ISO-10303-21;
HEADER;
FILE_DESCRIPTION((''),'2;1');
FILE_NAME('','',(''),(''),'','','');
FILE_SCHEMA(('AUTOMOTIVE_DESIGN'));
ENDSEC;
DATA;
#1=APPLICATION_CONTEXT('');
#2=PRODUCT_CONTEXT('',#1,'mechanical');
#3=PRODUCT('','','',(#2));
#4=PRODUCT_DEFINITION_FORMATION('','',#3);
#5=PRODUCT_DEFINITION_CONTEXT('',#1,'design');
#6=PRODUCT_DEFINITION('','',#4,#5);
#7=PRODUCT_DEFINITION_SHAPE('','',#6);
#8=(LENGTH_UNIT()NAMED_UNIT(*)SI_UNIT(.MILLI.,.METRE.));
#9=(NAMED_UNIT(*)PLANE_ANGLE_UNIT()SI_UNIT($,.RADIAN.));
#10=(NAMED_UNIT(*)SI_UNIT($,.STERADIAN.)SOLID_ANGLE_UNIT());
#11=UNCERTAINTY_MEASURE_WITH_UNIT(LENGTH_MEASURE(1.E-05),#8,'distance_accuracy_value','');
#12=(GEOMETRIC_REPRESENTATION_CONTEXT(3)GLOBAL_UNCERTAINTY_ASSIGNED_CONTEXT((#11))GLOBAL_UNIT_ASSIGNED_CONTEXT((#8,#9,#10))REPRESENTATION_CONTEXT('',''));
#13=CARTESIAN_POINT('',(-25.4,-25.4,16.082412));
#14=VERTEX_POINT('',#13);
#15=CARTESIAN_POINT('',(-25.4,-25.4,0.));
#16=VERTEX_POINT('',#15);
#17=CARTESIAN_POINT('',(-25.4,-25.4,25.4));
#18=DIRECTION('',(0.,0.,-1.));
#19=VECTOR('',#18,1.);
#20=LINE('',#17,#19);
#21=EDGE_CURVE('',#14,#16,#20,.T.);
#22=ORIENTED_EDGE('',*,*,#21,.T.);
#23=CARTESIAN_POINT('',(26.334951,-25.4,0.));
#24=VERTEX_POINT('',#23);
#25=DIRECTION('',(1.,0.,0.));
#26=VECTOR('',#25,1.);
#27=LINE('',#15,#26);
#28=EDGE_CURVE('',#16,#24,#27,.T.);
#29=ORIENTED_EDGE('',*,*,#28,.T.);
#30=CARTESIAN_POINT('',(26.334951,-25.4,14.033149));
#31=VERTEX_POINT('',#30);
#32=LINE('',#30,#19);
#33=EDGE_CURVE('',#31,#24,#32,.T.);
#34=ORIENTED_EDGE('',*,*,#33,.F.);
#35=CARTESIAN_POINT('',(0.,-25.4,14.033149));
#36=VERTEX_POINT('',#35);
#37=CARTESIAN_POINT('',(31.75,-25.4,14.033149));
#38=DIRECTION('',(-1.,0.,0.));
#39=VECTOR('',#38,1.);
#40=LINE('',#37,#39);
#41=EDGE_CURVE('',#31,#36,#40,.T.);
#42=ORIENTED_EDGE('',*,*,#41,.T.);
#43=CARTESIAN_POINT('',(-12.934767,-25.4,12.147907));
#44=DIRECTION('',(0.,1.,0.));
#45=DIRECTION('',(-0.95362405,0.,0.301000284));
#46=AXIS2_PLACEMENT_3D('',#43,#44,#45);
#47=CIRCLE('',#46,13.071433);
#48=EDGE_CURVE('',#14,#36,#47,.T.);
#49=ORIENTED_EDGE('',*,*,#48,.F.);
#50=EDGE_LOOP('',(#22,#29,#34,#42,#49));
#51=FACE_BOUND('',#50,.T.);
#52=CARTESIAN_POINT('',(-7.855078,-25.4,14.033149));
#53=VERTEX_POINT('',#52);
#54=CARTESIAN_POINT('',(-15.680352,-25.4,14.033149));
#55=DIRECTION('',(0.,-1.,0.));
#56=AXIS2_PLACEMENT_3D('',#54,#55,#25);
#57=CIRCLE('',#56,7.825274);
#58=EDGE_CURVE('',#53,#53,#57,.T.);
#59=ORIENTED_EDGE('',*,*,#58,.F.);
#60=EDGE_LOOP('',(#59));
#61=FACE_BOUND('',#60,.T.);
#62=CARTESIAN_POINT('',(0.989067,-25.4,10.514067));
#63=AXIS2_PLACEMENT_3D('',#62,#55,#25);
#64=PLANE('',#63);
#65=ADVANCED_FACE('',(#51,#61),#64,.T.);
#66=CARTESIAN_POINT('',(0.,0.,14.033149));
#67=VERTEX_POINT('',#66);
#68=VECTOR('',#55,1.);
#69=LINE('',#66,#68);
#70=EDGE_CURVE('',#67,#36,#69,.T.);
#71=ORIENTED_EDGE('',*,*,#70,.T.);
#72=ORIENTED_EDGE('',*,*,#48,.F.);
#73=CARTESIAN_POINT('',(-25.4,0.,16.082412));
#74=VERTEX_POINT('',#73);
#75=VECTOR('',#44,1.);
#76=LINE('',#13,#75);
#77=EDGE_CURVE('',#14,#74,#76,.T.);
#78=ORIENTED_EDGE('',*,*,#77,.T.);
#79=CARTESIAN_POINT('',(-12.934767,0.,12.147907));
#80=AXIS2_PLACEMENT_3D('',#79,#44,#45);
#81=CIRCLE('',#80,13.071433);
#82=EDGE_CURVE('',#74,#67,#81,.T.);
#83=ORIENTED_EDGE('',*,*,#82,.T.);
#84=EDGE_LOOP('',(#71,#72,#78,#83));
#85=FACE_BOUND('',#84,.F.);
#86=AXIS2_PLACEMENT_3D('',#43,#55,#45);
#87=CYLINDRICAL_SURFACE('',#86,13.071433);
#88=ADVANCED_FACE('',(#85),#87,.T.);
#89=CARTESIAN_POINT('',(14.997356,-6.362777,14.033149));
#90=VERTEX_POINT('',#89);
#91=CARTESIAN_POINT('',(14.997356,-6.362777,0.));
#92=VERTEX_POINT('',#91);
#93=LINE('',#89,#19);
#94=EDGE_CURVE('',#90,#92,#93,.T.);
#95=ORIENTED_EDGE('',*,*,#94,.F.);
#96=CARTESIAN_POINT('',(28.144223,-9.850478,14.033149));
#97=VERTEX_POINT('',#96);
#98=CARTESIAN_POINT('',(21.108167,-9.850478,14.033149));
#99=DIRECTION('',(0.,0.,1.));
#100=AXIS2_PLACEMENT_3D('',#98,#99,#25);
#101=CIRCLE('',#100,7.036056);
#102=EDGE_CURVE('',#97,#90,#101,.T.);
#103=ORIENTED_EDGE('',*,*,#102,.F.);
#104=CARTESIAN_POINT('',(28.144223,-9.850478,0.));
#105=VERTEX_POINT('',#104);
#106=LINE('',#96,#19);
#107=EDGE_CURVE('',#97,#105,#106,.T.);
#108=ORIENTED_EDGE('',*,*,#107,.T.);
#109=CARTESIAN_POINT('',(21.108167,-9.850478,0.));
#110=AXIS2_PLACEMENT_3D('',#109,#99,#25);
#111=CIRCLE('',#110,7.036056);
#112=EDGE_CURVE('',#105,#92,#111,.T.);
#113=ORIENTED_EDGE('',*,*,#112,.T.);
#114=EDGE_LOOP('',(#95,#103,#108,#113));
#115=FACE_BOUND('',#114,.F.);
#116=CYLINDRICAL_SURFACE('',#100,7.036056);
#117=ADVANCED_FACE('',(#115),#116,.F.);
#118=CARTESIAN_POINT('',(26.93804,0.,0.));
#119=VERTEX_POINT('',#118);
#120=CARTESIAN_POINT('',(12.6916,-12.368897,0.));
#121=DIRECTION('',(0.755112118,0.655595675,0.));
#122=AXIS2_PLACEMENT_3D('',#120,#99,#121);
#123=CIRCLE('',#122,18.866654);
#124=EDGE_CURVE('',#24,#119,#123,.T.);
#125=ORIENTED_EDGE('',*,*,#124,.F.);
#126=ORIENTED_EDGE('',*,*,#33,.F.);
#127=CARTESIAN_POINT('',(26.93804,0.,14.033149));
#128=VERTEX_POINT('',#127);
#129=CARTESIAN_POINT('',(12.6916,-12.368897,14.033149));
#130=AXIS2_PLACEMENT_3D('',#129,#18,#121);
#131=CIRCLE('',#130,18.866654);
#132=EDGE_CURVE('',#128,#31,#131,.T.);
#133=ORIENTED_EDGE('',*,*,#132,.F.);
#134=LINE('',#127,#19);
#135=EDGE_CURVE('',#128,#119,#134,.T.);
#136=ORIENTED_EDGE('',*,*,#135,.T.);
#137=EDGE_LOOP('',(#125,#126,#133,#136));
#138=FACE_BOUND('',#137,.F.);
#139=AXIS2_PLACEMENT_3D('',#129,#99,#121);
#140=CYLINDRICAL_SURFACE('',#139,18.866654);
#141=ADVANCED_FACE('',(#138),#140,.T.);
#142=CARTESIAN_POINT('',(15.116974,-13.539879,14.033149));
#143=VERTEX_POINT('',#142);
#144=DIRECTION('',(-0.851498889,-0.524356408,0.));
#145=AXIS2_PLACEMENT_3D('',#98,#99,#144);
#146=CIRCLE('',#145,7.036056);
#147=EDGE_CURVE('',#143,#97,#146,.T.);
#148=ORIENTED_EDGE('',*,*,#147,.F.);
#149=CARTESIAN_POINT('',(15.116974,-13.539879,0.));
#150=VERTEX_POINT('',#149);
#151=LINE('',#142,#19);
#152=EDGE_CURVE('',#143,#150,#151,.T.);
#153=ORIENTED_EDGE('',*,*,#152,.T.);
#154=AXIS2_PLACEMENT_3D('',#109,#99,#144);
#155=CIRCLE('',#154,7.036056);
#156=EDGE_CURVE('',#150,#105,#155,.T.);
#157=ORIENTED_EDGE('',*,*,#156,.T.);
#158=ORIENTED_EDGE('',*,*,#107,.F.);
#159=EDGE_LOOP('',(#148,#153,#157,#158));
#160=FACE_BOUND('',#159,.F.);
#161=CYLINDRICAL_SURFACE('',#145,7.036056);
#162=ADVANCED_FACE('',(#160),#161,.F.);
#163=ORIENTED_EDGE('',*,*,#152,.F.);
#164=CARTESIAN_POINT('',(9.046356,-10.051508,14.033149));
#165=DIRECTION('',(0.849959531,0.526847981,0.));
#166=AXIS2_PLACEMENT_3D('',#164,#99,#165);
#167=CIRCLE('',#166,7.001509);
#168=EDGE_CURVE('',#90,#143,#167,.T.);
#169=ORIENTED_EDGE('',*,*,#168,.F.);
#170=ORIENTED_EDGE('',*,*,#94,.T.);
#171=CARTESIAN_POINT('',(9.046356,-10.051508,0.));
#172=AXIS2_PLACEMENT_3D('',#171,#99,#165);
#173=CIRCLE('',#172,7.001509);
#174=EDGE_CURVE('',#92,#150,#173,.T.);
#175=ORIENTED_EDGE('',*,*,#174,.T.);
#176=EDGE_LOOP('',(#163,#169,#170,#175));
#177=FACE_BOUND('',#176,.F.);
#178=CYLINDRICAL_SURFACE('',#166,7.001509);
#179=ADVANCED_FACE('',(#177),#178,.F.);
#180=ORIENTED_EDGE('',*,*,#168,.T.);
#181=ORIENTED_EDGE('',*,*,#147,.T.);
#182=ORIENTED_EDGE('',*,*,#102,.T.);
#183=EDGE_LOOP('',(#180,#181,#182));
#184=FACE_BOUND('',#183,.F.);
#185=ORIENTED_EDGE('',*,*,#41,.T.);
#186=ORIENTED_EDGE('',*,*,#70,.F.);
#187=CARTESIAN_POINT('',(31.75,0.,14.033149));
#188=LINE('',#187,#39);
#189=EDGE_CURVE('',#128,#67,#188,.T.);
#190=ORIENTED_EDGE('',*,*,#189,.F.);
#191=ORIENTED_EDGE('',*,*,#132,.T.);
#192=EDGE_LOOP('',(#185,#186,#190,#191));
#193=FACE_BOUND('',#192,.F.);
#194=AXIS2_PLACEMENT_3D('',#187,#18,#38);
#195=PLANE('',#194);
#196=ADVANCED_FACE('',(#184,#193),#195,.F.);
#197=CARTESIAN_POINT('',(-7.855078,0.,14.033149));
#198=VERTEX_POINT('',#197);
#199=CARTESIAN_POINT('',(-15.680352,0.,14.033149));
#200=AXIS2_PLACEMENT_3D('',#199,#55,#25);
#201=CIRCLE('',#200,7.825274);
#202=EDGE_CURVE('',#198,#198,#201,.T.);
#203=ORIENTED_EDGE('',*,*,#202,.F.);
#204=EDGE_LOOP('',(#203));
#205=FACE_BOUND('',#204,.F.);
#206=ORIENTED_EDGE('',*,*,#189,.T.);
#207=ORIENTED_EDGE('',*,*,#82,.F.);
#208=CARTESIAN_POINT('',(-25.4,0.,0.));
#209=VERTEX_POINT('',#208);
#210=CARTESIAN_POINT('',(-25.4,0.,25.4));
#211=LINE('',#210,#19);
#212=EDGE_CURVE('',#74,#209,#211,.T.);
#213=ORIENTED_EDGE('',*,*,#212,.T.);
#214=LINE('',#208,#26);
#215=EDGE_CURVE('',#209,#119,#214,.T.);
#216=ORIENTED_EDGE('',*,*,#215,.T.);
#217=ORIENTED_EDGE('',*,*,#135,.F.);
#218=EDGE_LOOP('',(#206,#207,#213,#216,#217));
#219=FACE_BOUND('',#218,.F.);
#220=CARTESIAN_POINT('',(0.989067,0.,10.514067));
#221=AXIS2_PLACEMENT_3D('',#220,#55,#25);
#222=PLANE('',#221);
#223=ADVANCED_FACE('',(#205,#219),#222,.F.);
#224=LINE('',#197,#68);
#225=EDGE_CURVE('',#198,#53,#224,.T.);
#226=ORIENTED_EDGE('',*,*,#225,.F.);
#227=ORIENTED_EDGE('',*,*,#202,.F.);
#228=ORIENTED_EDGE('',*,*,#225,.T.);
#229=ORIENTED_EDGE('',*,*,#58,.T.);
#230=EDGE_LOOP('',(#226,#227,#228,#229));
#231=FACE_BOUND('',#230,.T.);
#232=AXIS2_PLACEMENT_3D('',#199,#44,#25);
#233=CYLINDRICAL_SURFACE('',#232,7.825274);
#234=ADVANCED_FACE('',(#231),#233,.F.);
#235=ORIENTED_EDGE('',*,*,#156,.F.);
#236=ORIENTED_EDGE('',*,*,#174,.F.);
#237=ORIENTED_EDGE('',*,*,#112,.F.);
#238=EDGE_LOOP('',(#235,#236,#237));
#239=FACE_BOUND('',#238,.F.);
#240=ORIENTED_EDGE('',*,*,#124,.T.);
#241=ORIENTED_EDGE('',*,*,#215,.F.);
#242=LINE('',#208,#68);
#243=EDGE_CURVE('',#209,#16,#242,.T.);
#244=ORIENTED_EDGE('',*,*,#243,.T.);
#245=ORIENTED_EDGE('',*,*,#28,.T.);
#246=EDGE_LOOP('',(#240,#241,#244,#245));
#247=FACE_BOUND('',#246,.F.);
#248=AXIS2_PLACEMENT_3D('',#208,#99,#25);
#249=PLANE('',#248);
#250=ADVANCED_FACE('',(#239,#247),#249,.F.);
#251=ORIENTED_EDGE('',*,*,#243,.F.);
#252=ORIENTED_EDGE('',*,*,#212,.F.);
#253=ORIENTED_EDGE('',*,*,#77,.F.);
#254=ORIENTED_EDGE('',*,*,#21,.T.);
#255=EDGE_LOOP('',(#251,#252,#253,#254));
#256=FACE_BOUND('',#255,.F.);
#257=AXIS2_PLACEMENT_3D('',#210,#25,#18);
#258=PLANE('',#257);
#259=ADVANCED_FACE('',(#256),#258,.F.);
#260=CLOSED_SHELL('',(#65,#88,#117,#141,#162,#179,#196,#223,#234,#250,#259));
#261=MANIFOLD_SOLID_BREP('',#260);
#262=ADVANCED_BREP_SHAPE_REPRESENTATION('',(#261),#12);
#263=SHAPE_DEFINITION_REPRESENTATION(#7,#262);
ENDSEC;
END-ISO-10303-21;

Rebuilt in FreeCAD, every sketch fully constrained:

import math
import FreeCAD as App
import Part
import Sketcher
from FreeCAD import Vector
Q = App.Units.Quantity

doc = App.newDocument("Part")
params = doc.addObject("Spreadsheet::Sheet", "Params")
for row, (alias, value) in enumerate([
    ("sketch1_width", "1 in"),
    ("sketch1_width2", "2.25 in"),
    ("pad1_length", "1 in"),
    ("pocket1_length", "1 in"),
    ("sketch3_height", "1 in"),
    ("pocket2_length", "1 in"),
    ("sketch4_width", "1 in"),
    ("pocket3_length", "1 in"),
], start=1):
    params.set(f"A{row}", alias)
    params.set(f"B{row}", "=" + value)
    params.setAlias(f"B{row}", alias)

body = doc.addObject("PartDesign::Body", "Body")

sketch1 = doc.addObject("Sketcher::SketchObject", "Sketch")
body.addObject(sketch1)
sketch1.AttachmentSupport = (doc.XZ_Plane, [""])
sketch1.MapMode = "FlatFace"
sketch1.addGeometry(Part.LineSegment(Vector(0, 25.4, 0), Vector(-25.4, 25.4, 0)), False)
sketch1.addGeometry(Part.LineSegment(Vector(-25.4, 25.4, 0), Vector(-25.4, 0, 0)), False)
sketch1.addGeometry(Part.LineSegment(Vector(-25.4, 0, 0), Vector(31.75, 0, 0)), False)
sketch1.addGeometry(Part.LineSegment(Vector(31.75, 0, 0), Vector(31.75, 14.033149, 0)), False)
sketch1.addGeometry(Part.LineSegment(Vector(31.75, 14.033149, 0), Vector(0, 14.033149, 0)), False)
sketch1.addGeometry(Part.LineSegment(Vector(0, 14.033149, 0), Vector(0, 25.4, 0)), False)
sketch1.addGeometry(Part.Circle(Vector(-15.680352, 14.033149, 0), Vector(0, 0, 1), 7.825274), False)
sketch1.addConstraint(Sketcher.Constraint("Coincident", 0, 2, 1, 1))
sketch1.addConstraint(Sketcher.Constraint("Coincident", 1, 2, 2, 1))
sketch1.addConstraint(Sketcher.Constraint("Coincident", 2, 2, 3, 1))
sketch1.addConstraint(Sketcher.Constraint("Coincident", 3, 2, 4, 1))
sketch1.addConstraint(Sketcher.Constraint("Coincident", 4, 2, 5, 1))
sketch1.addConstraint(Sketcher.Constraint("Coincident", 5, 2, 0, 1))
sketch1.addConstraint(Sketcher.Constraint("Horizontal", 0))
sketch1.addConstraint(Sketcher.Constraint("Vertical", 1))
sketch1.addConstraint(Sketcher.Constraint("Horizontal", 2))
sketch1.addConstraint(Sketcher.Constraint("Vertical", 3))
sketch1.addConstraint(Sketcher.Constraint("Horizontal", 4))
sketch1.addConstraint(Sketcher.Constraint("Vertical", 5))
sketch1.addConstraint(Sketcher.Constraint("PointOnObject", 1, 2, -1))
sketch1.addConstraint(Sketcher.Constraint("PointOnObject", 4, 2, -2))
sketch1.addConstraint(Sketcher.Constraint("Horizontal", 6, 3, 3, 2))
sketch1.addConstraint(Sketcher.Constraint("Equal", 0, 1))
sketch1.addConstraint(Sketcher.Constraint("DistanceX", 0, 2, 0, 1, Q("1 in")))
sketch1.addConstraint(Sketcher.Constraint("DistanceX", 2, 1, 2, 2, Q("2.25 in")))
sketch1.addConstraint(Sketcher.Constraint("Diameter", 6, 15.650548))
sketch1.addConstraint(Sketcher.Constraint("DistanceY", 3, 1, 3, 2, 14.033149))
sketch1.addConstraint(Sketcher.Constraint("DistanceX", 6, 3, -1, 1, 15.680352))
sketch1.setExpression("Constraints[16]", "Params.sketch1_width")
sketch1.setExpression("Constraints[17]", "Params.sketch1_width2")
pad1 = doc.addObject("PartDesign::Pad", "Pad")
body.addObject(pad1)
pad1.Profile = sketch1
pad1.setExpression("Length", "Params.pad1_length")

sketch2 = doc.addObject("Sketcher::SketchObject", "Sketch001")
body.addObject(sketch2)
sketch2.AttachmentSupport = (doc.XY_Plane, [""])
sketch2.MapMode = "FlatFace"
sketch2.AttachmentOffset = App.Placement(Vector(0, 0, 14.033149), App.Rotation())
sketch2.addGeometry(Part.ArcOfCircle(Part.Circle(Vector(21.108167, -9.850478, 0), Vector(0, 0, 1), 7.036056), math.radians(-148.375073), math.radians(0)), False)
sketch2.addGeometry(Part.ArcOfCircle(Part.Circle(Vector(21.108167, -9.850478, 0), Vector(0, 0, 1), 7.036056), math.radians(0), math.radians(150.284751)), False)
sketch2.addGeometry(Part.ArcOfCircle(Part.Circle(Vector(9.046356, -10.051508, 0), Vector(0, 0, 1), 7.001509), math.radians(31.792732), math.radians(330.116946)), False)
sketch2.addConstraint(Sketcher.Constraint("Tangent", 0, 2, 1, 1))
sketch2.addConstraint(Sketcher.Constraint("Coincident", 1, 2, 2, 1))
sketch2.addConstraint(Sketcher.Constraint("Coincident", 2, 2, 0, 1))
sketch2.addConstraint(Sketcher.Constraint("Equal", 0, 1))
sketch2.addConstraint(Sketcher.Constraint("Horizontal", 1, 3, 0, 2))
sketch2.addConstraint(Sketcher.Constraint("Radius", 2, 7.001509))
sketch2.addConstraint(Sketcher.Constraint("Radius", 0, 7.036056))
sketch2.addConstraint(Sketcher.Constraint("DistanceX", 2, 3, 1, 2, 5.950999))
sketch2.addConstraint(Sketcher.Constraint("DistanceY", 0, 3, 1, 2, 3.487701))
sketch2.addConstraint(Sketcher.Constraint("DistanceY", 2, 2, -1, 1, 13.539879))
sketch2.addConstraint(Sketcher.Constraint("DistanceX", -1, 1, 0, 3, 21.108167))
pocket1 = doc.addObject("PartDesign::Pocket", "Pocket")
body.addObject(pocket1)
pocket1.Profile = sketch2
pocket1.setExpression("Length", "Params.pocket1_length")

sketch3 = doc.addObject("Sketcher::SketchObject", "Sketch002")
body.addObject(sketch3)
sketch3.AttachmentSupport = (doc.XY_Plane, [""])
sketch3.MapMode = "FlatFace"
sketch3.AttachmentOffset = App.Placement(Vector(0, 0, 14.033149), App.Rotation())
sketch3.addGeometry(Part.ArcOfCircle(Part.Circle(Vector(12.6916, -12.368897, 0), Vector(0, 0, 1), 18.866654), math.radians(-43.685145), math.radians(40.964833)), False)
sketch3.addGeometry(Part.LineSegment(Vector(26.334951, -25.4, 0), Vector(31.75, -25.4, 0)), False)
sketch3.addGeometry(Part.LineSegment(Vector(31.75, -25.4, 0), Vector(31.75, 0, 0)), False)
sketch3.addGeometry(Part.LineSegment(Vector(31.75, 0, 0), Vector(26.93804, 0, 0)), False)
sketch3.addConstraint(Sketcher.Constraint("Coincident", 0, 1, 1, 1))
sketch3.addConstraint(Sketcher.Constraint("Coincident", 1, 2, 2, 1))
sketch3.addConstraint(Sketcher.Constraint("Coincident", 2, 2, 3, 1))
sketch3.addConstraint(Sketcher.Constraint("Coincident", 3, 2, 0, 2))
sketch3.addConstraint(Sketcher.Constraint("Horizontal", 1))
sketch3.addConstraint(Sketcher.Constraint("Vertical", 2))
sketch3.addConstraint(Sketcher.Constraint("Horizontal", 3))
sketch3.addConstraint(Sketcher.Constraint("PointOnObject", 2, 2, -1))
sketch3.addConstraint(Sketcher.Constraint("DistanceY", 2, 1, 2, 2, Q("1 in")))
sketch3.addConstraint(Sketcher.Constraint("DistanceX", -1, 1, 1, 2, Q("1.25 in")))
sketch3.addConstraint(Sketcher.Constraint("Radius", 0, 18.866654))
sketch3.addConstraint(Sketcher.Constraint("DistanceX", 1, 1, 1, 2, 5.415049))
sketch3.addConstraint(Sketcher.Constraint("DistanceX", 3, 2, 3, 1, 4.81196))
sketch3.setExpression("Constraints[8]", "Params.sketch3_height")
pocket2 = doc.addObject("PartDesign::Pocket", "Pocket001")
body.addObject(pocket2)
pocket2.Profile = sketch3
pocket2.setExpression("Length", "Params.pocket2_length")

sketch4 = doc.addObject("Sketcher::SketchObject", "Sketch003")
body.addObject(sketch4)
sketch4.AttachmentSupport = (doc.XZ_Plane, [""])
sketch4.MapMode = "FlatFace"
sketch4.AttachmentOffset = App.Placement(Vector(0, 0, 1 * 25.4), App.Rotation())
sketch4.addGeometry(Part.ArcOfCircle(Part.Circle(Vector(-12.934767, 12.147907, 0), Vector(0, 0, 1), 13.071433), math.radians(8.292472), math.radians(162.482308)), False)
sketch4.addGeometry(Part.LineSegment(Vector(0, 14.033149, 0), Vector(0, 25.4, 0)), False)
sketch4.addGeometry(Part.LineSegment(Vector(0, 25.4, 0), Vector(-25.4, 25.4, 0)), False)
sketch4.addGeometry(Part.LineSegment(Vector(-25.4, 25.4, 0), Vector(-25.4, 16.082412, 0)), False)
sketch4.addConstraint(Sketcher.Constraint("Coincident", 0, 1, 1, 1))
sketch4.addConstraint(Sketcher.Constraint("Coincident", 1, 2, 2, 1))
sketch4.addConstraint(Sketcher.Constraint("Coincident", 2, 2, 3, 1))
sketch4.addConstraint(Sketcher.Constraint("Coincident", 3, 2, 0, 2))
sketch4.addConstraint(Sketcher.Constraint("Vertical", 1))
sketch4.addConstraint(Sketcher.Constraint("Horizontal", 2))
sketch4.addConstraint(Sketcher.Constraint("Vertical", 3))
sketch4.addConstraint(Sketcher.Constraint("PointOnObject", 0, 1, -2))
sketch4.addConstraint(Sketcher.Constraint("DistanceX", 2, 2, 2, 1, Q("1 in")))
sketch4.addConstraint(Sketcher.Constraint("DistanceY", -1, 1, 1, 2, Q("1 in")))
sketch4.addConstraint(Sketcher.Constraint("Radius", 0, 13.071433))
sketch4.addConstraint(Sketcher.Constraint("DistanceY", 1, 1, 1, 2, 11.366851))
sketch4.addConstraint(Sketcher.Constraint("DistanceY", 3, 2, 3, 1, 9.317588))
sketch4.setExpression("Constraints[8]", "Params.sketch4_width")
pocket3 = doc.addObject("PartDesign::Pocket", "Pocket002")
body.addObject(pocket3)
pocket3.Profile = sketch4
pocket3.setExpression("Length", "Params.pocket3_length")

doc.recompute()
